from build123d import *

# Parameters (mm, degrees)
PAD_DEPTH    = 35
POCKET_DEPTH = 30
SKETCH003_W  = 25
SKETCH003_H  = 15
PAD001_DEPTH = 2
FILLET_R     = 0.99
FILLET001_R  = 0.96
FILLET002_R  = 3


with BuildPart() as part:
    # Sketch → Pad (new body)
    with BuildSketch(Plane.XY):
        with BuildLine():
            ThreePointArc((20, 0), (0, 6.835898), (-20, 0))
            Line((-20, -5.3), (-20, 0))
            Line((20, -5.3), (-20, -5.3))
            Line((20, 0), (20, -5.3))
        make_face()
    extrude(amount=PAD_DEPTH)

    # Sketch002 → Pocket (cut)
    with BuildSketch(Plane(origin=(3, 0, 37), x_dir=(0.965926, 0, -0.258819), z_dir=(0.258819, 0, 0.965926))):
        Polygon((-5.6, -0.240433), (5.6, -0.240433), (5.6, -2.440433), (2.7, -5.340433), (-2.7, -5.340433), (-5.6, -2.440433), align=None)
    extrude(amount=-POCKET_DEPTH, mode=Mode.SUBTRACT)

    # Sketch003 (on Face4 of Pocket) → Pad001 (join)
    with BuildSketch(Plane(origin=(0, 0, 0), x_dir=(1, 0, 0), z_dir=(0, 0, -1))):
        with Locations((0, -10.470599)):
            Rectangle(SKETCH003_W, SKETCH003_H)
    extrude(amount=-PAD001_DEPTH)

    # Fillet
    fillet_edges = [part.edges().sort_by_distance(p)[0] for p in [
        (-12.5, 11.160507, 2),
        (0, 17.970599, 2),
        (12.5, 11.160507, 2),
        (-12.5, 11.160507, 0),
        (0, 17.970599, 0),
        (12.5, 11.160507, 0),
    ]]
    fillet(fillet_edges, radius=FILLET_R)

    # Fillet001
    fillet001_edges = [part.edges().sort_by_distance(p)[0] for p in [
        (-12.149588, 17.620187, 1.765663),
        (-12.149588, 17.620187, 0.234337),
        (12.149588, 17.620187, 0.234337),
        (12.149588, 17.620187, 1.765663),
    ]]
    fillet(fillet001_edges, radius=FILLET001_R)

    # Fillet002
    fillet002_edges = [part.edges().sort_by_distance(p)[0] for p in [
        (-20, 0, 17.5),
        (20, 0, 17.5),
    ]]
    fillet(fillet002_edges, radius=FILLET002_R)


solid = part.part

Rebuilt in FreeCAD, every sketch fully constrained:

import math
import FreeCAD as App
import Part
import Sketcher
from FreeCAD import Vector
Q = App.Units.Quantity


def edges_at(feature, points):
    """Names of the edges that pass closest to the given points."""
    edges = feature.Shape.Edges
    near = lambda p: min(range(len(edges)), key=lambda i: edges[i].distToShape(Part.Vertex(*p))[0])
    return sorted({f"Edge{near(p) + 1}" for p in points})

doc = App.newDocument("Part")
body = doc.addObject("PartDesign::Body", "Body")

# Sketch on XY plane
sketch1 = body.newObject("Sketcher::SketchObject", "Sketch")
sketch1.AttachmentSupport = (doc.getObject("XY_Plane"), [""])
sketch1.MapMode = "FlatFace"
sketch1.addGeometry([
    Part.ArcOfCircle(Part.Circle(Vector(0, -26, 0), Vector(0, 0, 1), 33), math.radians(52), math.radians(128)),
    Part.LineSegment(Vector(-20, 0, 0), Vector(-20, -5, 0)),
    Part.LineSegment(Vector(-20, -5, 0), Vector(20, -5, 0)),
    Part.LineSegment(Vector(20, -5, 0), Vector(20, 0, 0)),
], False)
sketch1.addConstraint([
    Sketcher.Constraint("Coincident", 0, 2, 1, 1),
    Sketcher.Constraint("Coincident", 1, 2, 2, 1),
    Sketcher.Constraint("Coincident", 2, 2, 3, 1),
    Sketcher.Constraint("Coincident", 3, 2, 0, 1),
    Sketcher.Constraint("Vertical", 1),
    Sketcher.Constraint("Horizontal", 2),
    Sketcher.Constraint("Vertical", 3),
    Sketcher.Constraint("Symmetric", 0, 2, 3, 2, -1, 1),
    Sketcher.Constraint("PointOnObject", 0, 3, -2),
    Sketcher.Constraint("DistanceX", 2, 1, 2, 2, Q("40 mm")),
    Sketcher.Constraint("DistanceY", 1, 2, 1, 1, Q("5.3 mm")),
    Sketcher.Constraint("Radius", 0, Q("32.675261 mm")),
])
pad1 = body.newObject("PartDesign::Pad", "Pad")
pad1.Profile = sketch1
pad1.Length = 35

# Sketch on an angled plane
sketch2 = body.newObject("Sketcher::SketchObject", "Sketch001")
sketch2.Placement = App.Placement(Vector(3, 0, 37), App.Rotation(Vector(0.965925849, 0, -0.25881896), Vector(0, 1, 0), Vector(0.25881896, 0, 0.965925849), "ZXY"))
sketch2.addGeometry([
    Part.LineSegment(Vector(5.6, -0.2, 0), Vector(-5.6, -0.2, 0)),  # 0
    Part.LineSegment(Vector(-5.6, -0.2, 0), Vector(-5.6, -2.4, 0)),  # 1
    Part.LineSegment(Vector(-5.6, -2.4, 0), Vector(-2.7, -5.3, 0)),  # 2
    Part.LineSegment(Vector(-2.7, -5.3, 0), Vector(2.7, -5.3, 0)),  # 3
    Part.LineSegment(Vector(2.7, -5.3, 0), Vector(5.6, -2.4, 0)),  # 4
    Part.LineSegment(Vector(5.6, -2.4, 0), Vector(5.6, -0.2, 0)),  # 5
], False)
sketch2.addConstraint([
    Sketcher.Constraint("Coincident", 0, 2, 1, 1),
    Sketcher.Constraint("Coincident", 1, 2, 2, 1),
    Sketcher.Constraint("Coincident", 2, 2, 3, 1),
    Sketcher.Constraint("Coincident", 3, 2, 4, 1),
    Sketcher.Constraint("Coincident", 4, 2, 5, 1),
    Sketcher.Constraint("Coincident", 5, 2, 0, 1),
    Sketcher.Constraint("Horizontal", 0),
    Sketcher.Constraint("Vertical", 1),
    Sketcher.Constraint("Horizontal", 3),
    Sketcher.Constraint("Vertical", 5),
    Sketcher.Constraint("Symmetric", 1, 2, 4, 2, -2),
    Sketcher.Constraint("Perpendicular", 2, 4),
    Sketcher.Constraint("Equal", 2, 4),
    Sketcher.Constraint("DistanceX", 0, 2, 0, 1, Q("11.2 mm")),
    Sketcher.Constraint("DistanceX", 3, 1, 3, 2, Q("5.4 mm")),
    Sketcher.Constraint("DistanceY", 1, 2, 1, 1, Q("2.2 mm")),
    Sketcher.Constraint("DistanceY", 0, 2, -1, 1, Q("0.240433 mm")),
])
pocket1 = body.newObject("PartDesign::Pocket", "Pocket")
pocket1.Profile = sketch2
pocket1.Length = 30

# Sketch on XY plane
sketch3 = body.newObject("Sketcher::SketchObject", "Sketch002")
sketch3.AttachmentSupport = (doc.getObject("XY_Plane"), [""])
sketch3.MapMode = "FlatFace"
sketch3.addGeometry([
    Part.LineSegment(Vector(-12, 3, 0), Vector(-12, 18, 0)),
    Part.LineSegment(Vector(-12, 18, 0), Vector(12, 18, 0)),
    Part.LineSegment(Vector(12, 18, 0), Vector(12, 3, 0)),
    Part.LineSegment(Vector(12, 3, 0), Vector(-12, 3, 0)),
], False)
sketch3.addConstraint([
    Sketcher.Constraint("Coincident", 0, 2, 1, 1),
    Sketcher.Constraint("Coincident", 1, 2, 2, 1),
    Sketcher.Constraint("Coincident", 2, 2, 3, 1),
    Sketcher.Constraint("Coincident", 3, 2, 0, 1),
    Sketcher.Constraint("Vertical", 0),
    Sketcher.Constraint("Horizontal", 1),
    Sketcher.Constraint("Vertical", 2),
    Sketcher.Constraint("Horizontal", 3),
    Sketcher.Constraint("DistanceX", 1, 1, 1, 2, Q("25 mm")),
    Sketcher.Constraint("DistanceY", 0, 1, 0, 2, Q("15 mm")),
    Sketcher.Constraint("DistanceX", 0, 2, -1, 1, Q("12.5 mm")),
    Sketcher.Constraint("DistanceY", -1, 1, 0, 2, Q("17.970599 mm")),
])
pad2 = body.newObject("PartDesign::Pad", "Pad001")
pad2.Profile = sketch3
pad2.Length = 2
doc.recompute()

fillet = body.newObject("PartDesign::Fillet", "Fillet")
fillet.Base = (pad2, edges_at(pad2, [
    (-12.5, 11.161, 2),
    (0, 17.971, 2),
    (12.5, 11.161, 2),
    (-12.5, 11.161, 0),
    (0, 17.971, 0),
    (12.5, 11.161, 0),
]))
fillet.Radius = 0.99
doc.recompute()

fillet2 = body.newObject("PartDesign::Fillet", "Fillet001")
fillet2.Base = (fillet, edges_at(fillet, [
    (-12.15, 17.62, 1.766),
    (-12.15, 17.62, 0.234),
    (12.15, 17.62, 0.234),
    (12.15, 17.62, 1.766),
]))
fillet2.Radius = 0.96
doc.recompute()

fillet3 = body.newObject("PartDesign::Fillet", "Fillet002")
fillet3.Base = (fillet2, edges_at(fillet2, [(-20, 0, 17.5), (20, 0, 17.5)]))
fillet3.Radius = 3

doc.recompute()
